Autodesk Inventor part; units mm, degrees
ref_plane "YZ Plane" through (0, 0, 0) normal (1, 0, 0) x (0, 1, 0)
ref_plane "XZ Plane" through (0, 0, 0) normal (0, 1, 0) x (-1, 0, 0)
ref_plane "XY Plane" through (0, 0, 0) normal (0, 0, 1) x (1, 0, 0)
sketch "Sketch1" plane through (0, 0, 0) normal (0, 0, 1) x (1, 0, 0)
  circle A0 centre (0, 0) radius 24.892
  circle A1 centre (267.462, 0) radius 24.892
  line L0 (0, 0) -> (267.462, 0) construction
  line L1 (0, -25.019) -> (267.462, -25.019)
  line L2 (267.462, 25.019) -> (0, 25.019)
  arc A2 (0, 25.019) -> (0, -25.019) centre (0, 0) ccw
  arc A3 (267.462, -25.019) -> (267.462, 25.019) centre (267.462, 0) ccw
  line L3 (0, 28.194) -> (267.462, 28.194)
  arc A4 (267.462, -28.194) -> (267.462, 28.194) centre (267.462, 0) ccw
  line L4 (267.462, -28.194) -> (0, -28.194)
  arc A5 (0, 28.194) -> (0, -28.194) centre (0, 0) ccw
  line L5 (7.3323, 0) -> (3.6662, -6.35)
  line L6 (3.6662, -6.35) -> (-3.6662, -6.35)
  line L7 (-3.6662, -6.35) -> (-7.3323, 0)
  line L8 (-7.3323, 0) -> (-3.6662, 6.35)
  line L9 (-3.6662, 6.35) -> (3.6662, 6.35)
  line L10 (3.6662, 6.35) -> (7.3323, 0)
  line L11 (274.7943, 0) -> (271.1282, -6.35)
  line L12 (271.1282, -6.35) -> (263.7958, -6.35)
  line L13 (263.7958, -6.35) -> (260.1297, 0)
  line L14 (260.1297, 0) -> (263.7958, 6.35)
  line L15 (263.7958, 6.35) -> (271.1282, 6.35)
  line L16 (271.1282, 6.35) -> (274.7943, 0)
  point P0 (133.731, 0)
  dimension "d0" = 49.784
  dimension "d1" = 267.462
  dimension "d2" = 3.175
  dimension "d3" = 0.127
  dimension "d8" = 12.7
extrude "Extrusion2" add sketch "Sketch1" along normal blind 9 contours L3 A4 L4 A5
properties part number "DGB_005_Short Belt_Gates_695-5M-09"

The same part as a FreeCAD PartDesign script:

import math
import FreeCAD as App
import Part
import Sketcher
Q = App.Units.Quantity

doc = App.newDocument("Part")
body = doc.addObject("PartDesign::Body", "Body")

# Sketch on XY plane
sketch1 = body.newObject("Sketcher::SketchObject", "Sketch")
sketch1.AttachmentSupport = (doc.getObject("XY_Plane"), [""])
sketch1.MapMode = "FlatFace"
sketch1.addGeometry(Part.LineSegment(App.Vector(267, 28, 0), App.Vector(0, 28, 0)), False)
sketch1.addGeometry(Part.ArcOfCircle(Part.Circle(App.Vector(0, 0, 0), App.Vector(0, 0, 1), 28), math.radians(90), math.radians(270)), False)
sketch1.addGeometry(Part.LineSegment(App.Vector(0, -28, 0), App.Vector(267, -28, 0)), False)
sketch1.addGeometry(Part.ArcOfCircle(Part.Circle(App.Vector(267, 0, 0), App.Vector(0, 0, 1), 28), math.radians(-90), math.radians(90)), False)
sketch1.addGeometry(Part.LineSegment(App.Vector(267, -25, 0), App.Vector(0, -25, 0)), False)
sketch1.addGeometry(Part.ArcOfCircle(Part.Circle(App.Vector(0, 0, 0), App.Vector(0, 0, 1), 25), math.radians(90), math.radians(270)), False)
sketch1.addGeometry(Part.LineSegment(App.Vector(0, 25, 0), App.Vector(267, 25, 0)), False)
sketch1.addGeometry(Part.ArcOfCircle(Part.Circle(App.Vector(267, 0, 0), App.Vector(0, 0, 1), 25), math.radians(-90), math.radians(90)), False)
sketch1.addConstraint(Sketcher.Constraint("Tangent", 0, 2, 1, 1))
sketch1.addConstraint(Sketcher.Constraint("Tangent", 1, 2, 2, 1))
sketch1.addConstraint(Sketcher.Constraint("Tangent", 2, 2, 3, 1))
sketch1.addConstraint(Sketcher.Constraint("Tangent", 3, 2, 0, 1))
sketch1.addConstraint(Sketcher.Constraint("Tangent", 4, 2, 5, 2))
sketch1.addConstraint(Sketcher.Constraint("Tangent", 5, 1, 6, 1))
sketch1.addConstraint(Sketcher.Constraint("Tangent", 6, 2, 7, 2))
sketch1.addConstraint(Sketcher.Constraint("Tangent", 7, 1, 4, 1))
sketch1.addConstraint(Sketcher.Constraint("Horizontal", 0))
sketch1.addConstraint(Sketcher.Constraint("Horizontal", 2))
sketch1.addConstraint(Sketcher.Constraint("Horizontal", 4))
sketch1.addConstraint(Sketcher.Constraint("Horizontal", 6))
sketch1.addConstraint(Sketcher.Constraint("Coincident", 1, 3, -1, 1))
sketch1.addConstraint(Sketcher.Constraint("Coincident", 5, 3, -1, 1))
sketch1.addConstraint(Sketcher.Constraint("Vertical", 7, 3, 2, 2))
sketch1.addConstraint(Sketcher.Constraint("DistanceX", 0, 2, 0, 1, Q("10.53 in")))
sketch1.addConstraint(Sketcher.Constraint("Radius", 1, Q("1.11 in")))
sketch1.addConstraint(Sketcher.Constraint("Radius", 5, Q("0.985 in")))
pad1 = body.newObject("PartDesign::Pad", "Pad")
pad1.Profile = sketch1
pad1.Length = 9

doc.recompute()
